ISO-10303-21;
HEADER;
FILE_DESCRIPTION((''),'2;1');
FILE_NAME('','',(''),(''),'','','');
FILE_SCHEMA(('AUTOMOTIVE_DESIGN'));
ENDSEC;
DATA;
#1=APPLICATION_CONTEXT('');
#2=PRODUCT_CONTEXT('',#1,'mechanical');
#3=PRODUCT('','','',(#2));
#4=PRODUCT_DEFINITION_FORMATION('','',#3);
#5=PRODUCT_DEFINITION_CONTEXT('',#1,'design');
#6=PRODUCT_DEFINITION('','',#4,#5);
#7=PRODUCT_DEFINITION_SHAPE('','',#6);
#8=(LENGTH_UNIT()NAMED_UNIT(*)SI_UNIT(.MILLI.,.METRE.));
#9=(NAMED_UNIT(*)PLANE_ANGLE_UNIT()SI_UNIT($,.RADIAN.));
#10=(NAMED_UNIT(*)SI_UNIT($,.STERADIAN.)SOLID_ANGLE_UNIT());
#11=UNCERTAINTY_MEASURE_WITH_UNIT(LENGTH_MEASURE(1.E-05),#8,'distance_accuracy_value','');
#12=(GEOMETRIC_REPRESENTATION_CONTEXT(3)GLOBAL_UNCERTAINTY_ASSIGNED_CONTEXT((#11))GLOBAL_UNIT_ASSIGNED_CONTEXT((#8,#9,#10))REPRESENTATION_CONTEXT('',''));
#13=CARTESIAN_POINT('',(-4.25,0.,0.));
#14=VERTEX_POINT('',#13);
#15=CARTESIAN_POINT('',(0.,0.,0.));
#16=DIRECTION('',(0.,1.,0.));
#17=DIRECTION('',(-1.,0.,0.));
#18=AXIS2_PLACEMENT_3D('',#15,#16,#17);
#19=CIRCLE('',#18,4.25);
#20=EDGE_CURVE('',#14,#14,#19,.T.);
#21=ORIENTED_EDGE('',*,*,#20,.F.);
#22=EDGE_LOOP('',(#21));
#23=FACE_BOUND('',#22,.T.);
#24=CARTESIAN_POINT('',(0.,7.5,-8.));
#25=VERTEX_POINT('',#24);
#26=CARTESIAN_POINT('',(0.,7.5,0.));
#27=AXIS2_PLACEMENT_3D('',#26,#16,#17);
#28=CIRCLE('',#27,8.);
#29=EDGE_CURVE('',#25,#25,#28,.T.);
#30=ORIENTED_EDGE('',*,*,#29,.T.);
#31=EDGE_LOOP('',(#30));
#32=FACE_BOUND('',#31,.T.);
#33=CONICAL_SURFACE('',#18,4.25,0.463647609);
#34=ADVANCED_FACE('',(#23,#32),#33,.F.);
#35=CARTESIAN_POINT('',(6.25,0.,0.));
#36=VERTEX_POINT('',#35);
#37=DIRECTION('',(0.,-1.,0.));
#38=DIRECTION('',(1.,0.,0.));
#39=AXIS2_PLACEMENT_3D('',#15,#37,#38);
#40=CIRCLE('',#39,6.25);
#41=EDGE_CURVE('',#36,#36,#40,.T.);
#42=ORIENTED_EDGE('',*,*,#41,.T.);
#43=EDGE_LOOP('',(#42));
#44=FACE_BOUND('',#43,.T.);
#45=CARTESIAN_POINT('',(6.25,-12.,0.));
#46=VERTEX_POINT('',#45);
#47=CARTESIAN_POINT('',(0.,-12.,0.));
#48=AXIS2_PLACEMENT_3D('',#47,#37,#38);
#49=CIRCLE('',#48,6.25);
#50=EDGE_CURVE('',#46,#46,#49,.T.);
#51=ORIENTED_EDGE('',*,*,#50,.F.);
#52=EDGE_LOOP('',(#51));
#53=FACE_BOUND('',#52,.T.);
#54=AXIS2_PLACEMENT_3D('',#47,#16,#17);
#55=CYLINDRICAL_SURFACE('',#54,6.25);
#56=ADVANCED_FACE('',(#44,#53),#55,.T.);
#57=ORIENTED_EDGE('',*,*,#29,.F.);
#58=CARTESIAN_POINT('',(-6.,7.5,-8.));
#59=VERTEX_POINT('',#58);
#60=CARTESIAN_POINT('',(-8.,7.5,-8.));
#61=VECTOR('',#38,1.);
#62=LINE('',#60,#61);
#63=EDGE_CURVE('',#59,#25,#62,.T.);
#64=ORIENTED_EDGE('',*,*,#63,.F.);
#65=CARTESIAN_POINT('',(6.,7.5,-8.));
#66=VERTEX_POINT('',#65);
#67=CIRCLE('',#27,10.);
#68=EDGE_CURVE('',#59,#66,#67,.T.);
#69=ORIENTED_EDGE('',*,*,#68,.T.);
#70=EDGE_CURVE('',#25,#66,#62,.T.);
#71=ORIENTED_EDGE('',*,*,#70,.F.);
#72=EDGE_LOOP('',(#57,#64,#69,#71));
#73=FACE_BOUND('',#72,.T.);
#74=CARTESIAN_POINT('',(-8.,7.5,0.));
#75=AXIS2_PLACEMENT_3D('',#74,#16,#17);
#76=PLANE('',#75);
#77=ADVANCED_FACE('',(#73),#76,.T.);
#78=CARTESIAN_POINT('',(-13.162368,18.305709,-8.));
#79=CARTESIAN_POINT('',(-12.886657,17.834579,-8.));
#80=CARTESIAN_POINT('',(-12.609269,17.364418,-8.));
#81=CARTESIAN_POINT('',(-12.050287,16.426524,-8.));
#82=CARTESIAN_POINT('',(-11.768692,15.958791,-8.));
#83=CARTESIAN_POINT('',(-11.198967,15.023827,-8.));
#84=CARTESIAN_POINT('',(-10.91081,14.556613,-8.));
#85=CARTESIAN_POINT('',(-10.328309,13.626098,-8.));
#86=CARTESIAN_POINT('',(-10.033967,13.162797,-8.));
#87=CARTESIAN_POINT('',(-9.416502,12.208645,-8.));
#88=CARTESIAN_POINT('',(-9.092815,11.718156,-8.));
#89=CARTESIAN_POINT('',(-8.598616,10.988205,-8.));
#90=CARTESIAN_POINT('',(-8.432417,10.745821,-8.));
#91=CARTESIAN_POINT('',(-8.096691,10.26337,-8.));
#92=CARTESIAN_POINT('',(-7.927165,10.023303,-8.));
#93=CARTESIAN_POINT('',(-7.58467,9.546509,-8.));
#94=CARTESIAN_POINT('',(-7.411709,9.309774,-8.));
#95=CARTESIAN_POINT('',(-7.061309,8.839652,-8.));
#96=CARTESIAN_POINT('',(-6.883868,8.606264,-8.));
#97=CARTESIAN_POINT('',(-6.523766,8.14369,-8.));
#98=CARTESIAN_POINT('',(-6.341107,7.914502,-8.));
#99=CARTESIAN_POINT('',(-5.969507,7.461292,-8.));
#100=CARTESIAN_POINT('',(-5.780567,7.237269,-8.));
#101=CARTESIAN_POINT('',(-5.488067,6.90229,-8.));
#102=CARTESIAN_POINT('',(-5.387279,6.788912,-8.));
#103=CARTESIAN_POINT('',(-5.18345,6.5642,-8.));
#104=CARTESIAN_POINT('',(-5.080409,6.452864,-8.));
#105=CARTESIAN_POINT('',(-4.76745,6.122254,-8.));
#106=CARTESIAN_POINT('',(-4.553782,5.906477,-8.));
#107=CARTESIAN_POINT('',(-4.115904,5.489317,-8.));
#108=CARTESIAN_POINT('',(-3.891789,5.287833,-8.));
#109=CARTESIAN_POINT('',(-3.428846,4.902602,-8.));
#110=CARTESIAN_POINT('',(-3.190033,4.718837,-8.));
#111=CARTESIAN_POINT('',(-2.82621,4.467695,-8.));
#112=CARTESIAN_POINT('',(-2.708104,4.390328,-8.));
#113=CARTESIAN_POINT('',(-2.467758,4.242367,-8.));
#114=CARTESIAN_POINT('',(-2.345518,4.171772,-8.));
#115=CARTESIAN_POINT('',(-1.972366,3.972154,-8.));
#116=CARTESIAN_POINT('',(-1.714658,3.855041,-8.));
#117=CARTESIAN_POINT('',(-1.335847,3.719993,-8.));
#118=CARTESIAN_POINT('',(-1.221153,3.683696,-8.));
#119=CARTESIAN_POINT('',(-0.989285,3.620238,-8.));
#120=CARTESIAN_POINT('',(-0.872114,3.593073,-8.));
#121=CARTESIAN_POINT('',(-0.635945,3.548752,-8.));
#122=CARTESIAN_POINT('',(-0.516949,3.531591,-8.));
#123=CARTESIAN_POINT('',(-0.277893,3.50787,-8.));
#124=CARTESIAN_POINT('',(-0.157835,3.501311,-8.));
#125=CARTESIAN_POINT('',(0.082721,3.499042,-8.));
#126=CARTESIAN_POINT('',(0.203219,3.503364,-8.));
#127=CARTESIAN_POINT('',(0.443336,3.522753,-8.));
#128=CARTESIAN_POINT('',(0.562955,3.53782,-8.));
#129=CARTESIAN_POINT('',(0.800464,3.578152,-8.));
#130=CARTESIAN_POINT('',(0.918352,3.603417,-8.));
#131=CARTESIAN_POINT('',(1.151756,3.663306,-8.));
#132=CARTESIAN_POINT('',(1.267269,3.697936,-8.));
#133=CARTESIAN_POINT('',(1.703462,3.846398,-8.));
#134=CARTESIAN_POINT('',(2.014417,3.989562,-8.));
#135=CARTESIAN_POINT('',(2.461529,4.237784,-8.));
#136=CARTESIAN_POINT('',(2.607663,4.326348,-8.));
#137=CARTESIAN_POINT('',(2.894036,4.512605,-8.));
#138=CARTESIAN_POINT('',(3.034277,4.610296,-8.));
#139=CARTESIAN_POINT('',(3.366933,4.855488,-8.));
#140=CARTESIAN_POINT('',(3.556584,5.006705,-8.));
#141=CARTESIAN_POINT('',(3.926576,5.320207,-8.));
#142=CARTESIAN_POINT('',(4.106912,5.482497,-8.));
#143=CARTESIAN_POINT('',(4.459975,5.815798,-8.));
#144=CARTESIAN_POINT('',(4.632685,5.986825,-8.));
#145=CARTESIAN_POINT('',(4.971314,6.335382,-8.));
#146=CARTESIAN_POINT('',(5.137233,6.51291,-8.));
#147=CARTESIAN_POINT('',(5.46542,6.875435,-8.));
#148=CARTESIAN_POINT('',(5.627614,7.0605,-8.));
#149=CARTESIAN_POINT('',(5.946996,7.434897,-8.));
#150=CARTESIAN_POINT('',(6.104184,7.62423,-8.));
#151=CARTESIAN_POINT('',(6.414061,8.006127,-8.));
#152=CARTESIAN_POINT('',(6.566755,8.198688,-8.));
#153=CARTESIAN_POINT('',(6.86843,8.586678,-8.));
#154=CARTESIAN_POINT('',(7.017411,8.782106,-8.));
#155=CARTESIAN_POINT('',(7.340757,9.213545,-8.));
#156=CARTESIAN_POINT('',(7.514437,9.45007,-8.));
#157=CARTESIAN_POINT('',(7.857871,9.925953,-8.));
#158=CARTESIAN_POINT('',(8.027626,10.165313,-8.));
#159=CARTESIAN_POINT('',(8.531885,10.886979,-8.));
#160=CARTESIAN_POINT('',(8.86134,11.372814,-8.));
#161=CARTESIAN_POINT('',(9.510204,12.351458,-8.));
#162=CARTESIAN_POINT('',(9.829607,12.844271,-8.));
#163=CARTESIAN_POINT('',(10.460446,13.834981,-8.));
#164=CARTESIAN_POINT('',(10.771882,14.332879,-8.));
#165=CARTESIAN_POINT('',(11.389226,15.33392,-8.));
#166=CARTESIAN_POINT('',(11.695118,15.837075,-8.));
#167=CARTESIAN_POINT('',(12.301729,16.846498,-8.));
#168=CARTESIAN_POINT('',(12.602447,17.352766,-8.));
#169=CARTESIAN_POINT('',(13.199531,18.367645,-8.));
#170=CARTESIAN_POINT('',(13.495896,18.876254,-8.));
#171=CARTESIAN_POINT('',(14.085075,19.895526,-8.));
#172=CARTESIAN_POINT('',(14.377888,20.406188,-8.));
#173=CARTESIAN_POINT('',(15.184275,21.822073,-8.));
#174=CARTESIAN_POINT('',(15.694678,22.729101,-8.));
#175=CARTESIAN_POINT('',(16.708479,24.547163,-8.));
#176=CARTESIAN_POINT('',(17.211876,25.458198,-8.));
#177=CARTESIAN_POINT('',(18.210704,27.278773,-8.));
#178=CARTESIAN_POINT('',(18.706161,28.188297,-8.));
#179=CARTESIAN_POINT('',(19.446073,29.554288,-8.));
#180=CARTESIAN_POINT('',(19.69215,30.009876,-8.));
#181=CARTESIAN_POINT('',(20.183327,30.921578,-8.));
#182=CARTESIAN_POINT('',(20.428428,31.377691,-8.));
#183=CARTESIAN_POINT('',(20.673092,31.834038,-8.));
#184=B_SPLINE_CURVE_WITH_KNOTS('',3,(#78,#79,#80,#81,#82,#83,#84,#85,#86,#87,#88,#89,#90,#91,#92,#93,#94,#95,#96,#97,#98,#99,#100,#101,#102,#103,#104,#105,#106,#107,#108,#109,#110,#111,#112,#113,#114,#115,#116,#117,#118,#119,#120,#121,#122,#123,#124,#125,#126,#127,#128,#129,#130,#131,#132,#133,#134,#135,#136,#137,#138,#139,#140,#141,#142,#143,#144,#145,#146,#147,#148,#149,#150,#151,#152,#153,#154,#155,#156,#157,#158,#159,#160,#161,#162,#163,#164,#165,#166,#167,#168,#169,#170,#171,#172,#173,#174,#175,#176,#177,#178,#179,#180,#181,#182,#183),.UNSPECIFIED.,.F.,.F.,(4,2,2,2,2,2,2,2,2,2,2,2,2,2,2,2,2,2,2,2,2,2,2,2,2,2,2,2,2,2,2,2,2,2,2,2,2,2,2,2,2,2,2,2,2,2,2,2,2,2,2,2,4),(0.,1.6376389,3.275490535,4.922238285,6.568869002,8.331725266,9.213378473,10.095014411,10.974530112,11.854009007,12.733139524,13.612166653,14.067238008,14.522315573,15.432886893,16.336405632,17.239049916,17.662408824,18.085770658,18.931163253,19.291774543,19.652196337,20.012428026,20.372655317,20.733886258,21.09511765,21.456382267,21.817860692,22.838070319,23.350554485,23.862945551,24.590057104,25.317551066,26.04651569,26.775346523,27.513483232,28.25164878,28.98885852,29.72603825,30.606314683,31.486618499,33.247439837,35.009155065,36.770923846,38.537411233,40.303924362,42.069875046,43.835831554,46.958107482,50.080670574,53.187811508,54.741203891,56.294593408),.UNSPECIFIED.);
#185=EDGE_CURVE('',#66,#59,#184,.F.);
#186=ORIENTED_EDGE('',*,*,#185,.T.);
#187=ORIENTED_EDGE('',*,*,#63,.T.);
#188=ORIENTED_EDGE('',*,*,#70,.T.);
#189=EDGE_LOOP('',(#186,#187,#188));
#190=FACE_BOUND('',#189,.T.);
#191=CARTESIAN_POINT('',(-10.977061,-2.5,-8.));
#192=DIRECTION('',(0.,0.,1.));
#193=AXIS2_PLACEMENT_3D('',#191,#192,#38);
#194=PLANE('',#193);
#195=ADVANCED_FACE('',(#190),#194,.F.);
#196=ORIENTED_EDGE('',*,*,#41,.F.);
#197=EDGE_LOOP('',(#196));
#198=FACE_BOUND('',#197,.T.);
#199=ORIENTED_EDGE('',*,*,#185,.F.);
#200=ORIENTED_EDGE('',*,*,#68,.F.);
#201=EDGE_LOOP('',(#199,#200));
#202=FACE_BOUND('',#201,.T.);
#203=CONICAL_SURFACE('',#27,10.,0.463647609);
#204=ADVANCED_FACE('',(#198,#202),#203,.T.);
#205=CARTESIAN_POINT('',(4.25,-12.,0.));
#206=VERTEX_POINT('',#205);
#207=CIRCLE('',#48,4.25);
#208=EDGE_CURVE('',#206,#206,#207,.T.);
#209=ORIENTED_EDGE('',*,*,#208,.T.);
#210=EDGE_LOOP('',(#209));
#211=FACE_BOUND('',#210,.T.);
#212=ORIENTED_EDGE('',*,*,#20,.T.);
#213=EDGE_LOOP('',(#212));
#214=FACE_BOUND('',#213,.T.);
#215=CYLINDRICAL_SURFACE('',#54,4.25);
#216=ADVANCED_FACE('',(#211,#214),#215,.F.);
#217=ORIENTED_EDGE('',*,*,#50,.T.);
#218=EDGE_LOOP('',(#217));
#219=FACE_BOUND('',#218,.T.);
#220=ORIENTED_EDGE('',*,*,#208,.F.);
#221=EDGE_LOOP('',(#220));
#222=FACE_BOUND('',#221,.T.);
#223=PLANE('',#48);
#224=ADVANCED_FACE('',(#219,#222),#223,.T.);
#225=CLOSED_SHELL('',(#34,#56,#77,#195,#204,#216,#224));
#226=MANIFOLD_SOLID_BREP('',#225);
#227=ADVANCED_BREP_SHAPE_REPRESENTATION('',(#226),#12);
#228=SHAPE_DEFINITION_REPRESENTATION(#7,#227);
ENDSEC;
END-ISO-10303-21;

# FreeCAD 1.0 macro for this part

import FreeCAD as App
import Part
import Sketcher

V = App.Vector
Q = App.Units.Quantity

doc = App.newDocument("Part")
body = doc.addObject("PartDesign::Body", "Body")

# Sketch on XY plane
sketch1 = body.newObject("Sketcher::SketchObject", "Sketch")
sketch1.AttachmentSupport = (doc.getObject("XY_Plane"), [""])
sketch1.MapMode = "FlatFace"
sketch1.addGeometry(Part.LineSegment(V(-4.25, 0, 0), V(-8, 7.5, 0)), False)
sketch1.addGeometry(Part.LineSegment(V(-8, 7.5, 0), V(-10, 7.5, 0)), False)
sketch1.addGeometry(Part.LineSegment(V(-10, 7.5, 0), V(-6.25, 0, 0)), False)
sketch1.addGeometry(Part.LineSegment(V(-6.25, 0, 0), V(-4.25, 0, 0)), False)
sketch1.addConstraint(Sketcher.Constraint("Coincident", 0, 2, 1, 1))
sketch1.addConstraint(Sketcher.Constraint("Coincident", 1, 2, 2, 1))
sketch1.addConstraint(Sketcher.Constraint("Coincident", 2, 2, 3, 1))
sketch1.addConstraint(Sketcher.Constraint("Coincident", 3, 2, 0, 1))
sketch1.addConstraint(Sketcher.Constraint("Horizontal", 1))
sketch1.addConstraint(Sketcher.Constraint("Horizontal", 3))
sketch1.addConstraint(Sketcher.Constraint("PointOnObject", 2, 2, -1))
sketch1.addConstraint(Sketcher.Constraint("Parallel", 0, 2))
sketch1.addConstraint(Sketcher.Constraint("DistanceX", 1, 2, 1, 1, Q("2 mm")))
sketch1.addConstraint(Sketcher.Constraint("DistanceX", 0, 2, -1, 1, Q("8 mm")))
sketch1.addConstraint(Sketcher.Constraint("DistanceY", -1, 1, 0, 2, Q("7.5 mm")))
sketch1.addConstraint(Sketcher.Constraint("DistanceX", 2, 2, -1, 1, Q("6.25 mm")))
revolution = body.newObject("PartDesign::Revolution", "Revolution")
revolution.Profile = sketch1
revolution.ReferenceAxis = (sketch1, ["V_Axis"])
revolution.Angle = 360

# Sketch on XZ plane
sketch2 = body.newObject("Sketcher::SketchObject", "Sketch001")
sketch2.AttachmentSupport = (doc.getObject("XZ_Plane"), [""])
sketch2.MapMode = "FlatFace"
sketch2.addGeometry(Part.Circle(V(0, 0, 0), V(0, 0, 1), 6.25), False)
sketch2.addGeometry(Part.Circle(V(0, 0, 0), V(0, 0, 1), 4.25), False)
sketch2.addConstraint(Sketcher.Constraint("Coincident", 0, 3, -1, 1))
sketch2.addConstraint(Sketcher.Constraint("Coincident", 1, 3, -1, 1))
sketch2.addConstraint(Sketcher.Constraint("Diameter", 0, Q("12.5 mm")))
sketch2.addConstraint(Sketcher.Constraint("Diameter", 1, Q("8.5 mm")))
pad1 = body.newObject("PartDesign::Pad", "Pad")
pad1.Profile = sketch2
pad1.Length = 12

# Sketch on XZ plane
sketch3 = body.newObject("Sketcher::SketchObject", "Sketch002")
sketch3.AttachmentSupport = (doc.getObject("XZ_Plane"), [""])
sketch3.MapMode = "FlatFace"
sketch3.AttachmentOffset = App.Placement(V(0, 0, -7.5), App.Rotation())
sketch3.addGeometry(Part.LineSegment(V(-10.977061, -8, 0), V(10.977061, -8, 0)), False)
sketch3.addGeometry(Part.LineSegment(V(10.977061, -8, 0), V(0, -12.609144, 0)), False)
sketch3.addGeometry(Part.LineSegment(V(0, -12.609144, 0), V(-10.977061, -8, 0)), False)
sketch3.addConstraint(Sketcher.Constraint("Coincident", 0, 2, 1, 1))
sketch3.addConstraint(Sketcher.Constraint("Coincident", 1, 2, 2, 1))
sketch3.addConstraint(Sketcher.Constraint("Coincident", 2, 2, 0, 1))
sketch3.addConstraint(Sketcher.Constraint("Horizontal", 0))
sketch3.addConstraint(Sketcher.Constraint("PointOnObject", 1, 2, -2))
sketch3.addConstraint(Sketcher.Constraint("Equal", 1, 2))
sketch3.addConstraint(Sketcher.Constraint("DistanceY", 0, 2, -1, 1, Q("8 mm")))
sketch3.addConstraint(Sketcher.Constraint("DistanceX", 0, 1, 0, 2, Q("21.954123 mm")))
sketch3.addConstraint(Sketcher.Constraint("Distance", 1, Q("11.905465 mm")))
pocket1 = body.newObject("PartDesign::Pocket", "Pocket")
pocket1.Profile = sketch3
pocket1.Length = 10
pocket1.Reversed = True

doc.recompute()
